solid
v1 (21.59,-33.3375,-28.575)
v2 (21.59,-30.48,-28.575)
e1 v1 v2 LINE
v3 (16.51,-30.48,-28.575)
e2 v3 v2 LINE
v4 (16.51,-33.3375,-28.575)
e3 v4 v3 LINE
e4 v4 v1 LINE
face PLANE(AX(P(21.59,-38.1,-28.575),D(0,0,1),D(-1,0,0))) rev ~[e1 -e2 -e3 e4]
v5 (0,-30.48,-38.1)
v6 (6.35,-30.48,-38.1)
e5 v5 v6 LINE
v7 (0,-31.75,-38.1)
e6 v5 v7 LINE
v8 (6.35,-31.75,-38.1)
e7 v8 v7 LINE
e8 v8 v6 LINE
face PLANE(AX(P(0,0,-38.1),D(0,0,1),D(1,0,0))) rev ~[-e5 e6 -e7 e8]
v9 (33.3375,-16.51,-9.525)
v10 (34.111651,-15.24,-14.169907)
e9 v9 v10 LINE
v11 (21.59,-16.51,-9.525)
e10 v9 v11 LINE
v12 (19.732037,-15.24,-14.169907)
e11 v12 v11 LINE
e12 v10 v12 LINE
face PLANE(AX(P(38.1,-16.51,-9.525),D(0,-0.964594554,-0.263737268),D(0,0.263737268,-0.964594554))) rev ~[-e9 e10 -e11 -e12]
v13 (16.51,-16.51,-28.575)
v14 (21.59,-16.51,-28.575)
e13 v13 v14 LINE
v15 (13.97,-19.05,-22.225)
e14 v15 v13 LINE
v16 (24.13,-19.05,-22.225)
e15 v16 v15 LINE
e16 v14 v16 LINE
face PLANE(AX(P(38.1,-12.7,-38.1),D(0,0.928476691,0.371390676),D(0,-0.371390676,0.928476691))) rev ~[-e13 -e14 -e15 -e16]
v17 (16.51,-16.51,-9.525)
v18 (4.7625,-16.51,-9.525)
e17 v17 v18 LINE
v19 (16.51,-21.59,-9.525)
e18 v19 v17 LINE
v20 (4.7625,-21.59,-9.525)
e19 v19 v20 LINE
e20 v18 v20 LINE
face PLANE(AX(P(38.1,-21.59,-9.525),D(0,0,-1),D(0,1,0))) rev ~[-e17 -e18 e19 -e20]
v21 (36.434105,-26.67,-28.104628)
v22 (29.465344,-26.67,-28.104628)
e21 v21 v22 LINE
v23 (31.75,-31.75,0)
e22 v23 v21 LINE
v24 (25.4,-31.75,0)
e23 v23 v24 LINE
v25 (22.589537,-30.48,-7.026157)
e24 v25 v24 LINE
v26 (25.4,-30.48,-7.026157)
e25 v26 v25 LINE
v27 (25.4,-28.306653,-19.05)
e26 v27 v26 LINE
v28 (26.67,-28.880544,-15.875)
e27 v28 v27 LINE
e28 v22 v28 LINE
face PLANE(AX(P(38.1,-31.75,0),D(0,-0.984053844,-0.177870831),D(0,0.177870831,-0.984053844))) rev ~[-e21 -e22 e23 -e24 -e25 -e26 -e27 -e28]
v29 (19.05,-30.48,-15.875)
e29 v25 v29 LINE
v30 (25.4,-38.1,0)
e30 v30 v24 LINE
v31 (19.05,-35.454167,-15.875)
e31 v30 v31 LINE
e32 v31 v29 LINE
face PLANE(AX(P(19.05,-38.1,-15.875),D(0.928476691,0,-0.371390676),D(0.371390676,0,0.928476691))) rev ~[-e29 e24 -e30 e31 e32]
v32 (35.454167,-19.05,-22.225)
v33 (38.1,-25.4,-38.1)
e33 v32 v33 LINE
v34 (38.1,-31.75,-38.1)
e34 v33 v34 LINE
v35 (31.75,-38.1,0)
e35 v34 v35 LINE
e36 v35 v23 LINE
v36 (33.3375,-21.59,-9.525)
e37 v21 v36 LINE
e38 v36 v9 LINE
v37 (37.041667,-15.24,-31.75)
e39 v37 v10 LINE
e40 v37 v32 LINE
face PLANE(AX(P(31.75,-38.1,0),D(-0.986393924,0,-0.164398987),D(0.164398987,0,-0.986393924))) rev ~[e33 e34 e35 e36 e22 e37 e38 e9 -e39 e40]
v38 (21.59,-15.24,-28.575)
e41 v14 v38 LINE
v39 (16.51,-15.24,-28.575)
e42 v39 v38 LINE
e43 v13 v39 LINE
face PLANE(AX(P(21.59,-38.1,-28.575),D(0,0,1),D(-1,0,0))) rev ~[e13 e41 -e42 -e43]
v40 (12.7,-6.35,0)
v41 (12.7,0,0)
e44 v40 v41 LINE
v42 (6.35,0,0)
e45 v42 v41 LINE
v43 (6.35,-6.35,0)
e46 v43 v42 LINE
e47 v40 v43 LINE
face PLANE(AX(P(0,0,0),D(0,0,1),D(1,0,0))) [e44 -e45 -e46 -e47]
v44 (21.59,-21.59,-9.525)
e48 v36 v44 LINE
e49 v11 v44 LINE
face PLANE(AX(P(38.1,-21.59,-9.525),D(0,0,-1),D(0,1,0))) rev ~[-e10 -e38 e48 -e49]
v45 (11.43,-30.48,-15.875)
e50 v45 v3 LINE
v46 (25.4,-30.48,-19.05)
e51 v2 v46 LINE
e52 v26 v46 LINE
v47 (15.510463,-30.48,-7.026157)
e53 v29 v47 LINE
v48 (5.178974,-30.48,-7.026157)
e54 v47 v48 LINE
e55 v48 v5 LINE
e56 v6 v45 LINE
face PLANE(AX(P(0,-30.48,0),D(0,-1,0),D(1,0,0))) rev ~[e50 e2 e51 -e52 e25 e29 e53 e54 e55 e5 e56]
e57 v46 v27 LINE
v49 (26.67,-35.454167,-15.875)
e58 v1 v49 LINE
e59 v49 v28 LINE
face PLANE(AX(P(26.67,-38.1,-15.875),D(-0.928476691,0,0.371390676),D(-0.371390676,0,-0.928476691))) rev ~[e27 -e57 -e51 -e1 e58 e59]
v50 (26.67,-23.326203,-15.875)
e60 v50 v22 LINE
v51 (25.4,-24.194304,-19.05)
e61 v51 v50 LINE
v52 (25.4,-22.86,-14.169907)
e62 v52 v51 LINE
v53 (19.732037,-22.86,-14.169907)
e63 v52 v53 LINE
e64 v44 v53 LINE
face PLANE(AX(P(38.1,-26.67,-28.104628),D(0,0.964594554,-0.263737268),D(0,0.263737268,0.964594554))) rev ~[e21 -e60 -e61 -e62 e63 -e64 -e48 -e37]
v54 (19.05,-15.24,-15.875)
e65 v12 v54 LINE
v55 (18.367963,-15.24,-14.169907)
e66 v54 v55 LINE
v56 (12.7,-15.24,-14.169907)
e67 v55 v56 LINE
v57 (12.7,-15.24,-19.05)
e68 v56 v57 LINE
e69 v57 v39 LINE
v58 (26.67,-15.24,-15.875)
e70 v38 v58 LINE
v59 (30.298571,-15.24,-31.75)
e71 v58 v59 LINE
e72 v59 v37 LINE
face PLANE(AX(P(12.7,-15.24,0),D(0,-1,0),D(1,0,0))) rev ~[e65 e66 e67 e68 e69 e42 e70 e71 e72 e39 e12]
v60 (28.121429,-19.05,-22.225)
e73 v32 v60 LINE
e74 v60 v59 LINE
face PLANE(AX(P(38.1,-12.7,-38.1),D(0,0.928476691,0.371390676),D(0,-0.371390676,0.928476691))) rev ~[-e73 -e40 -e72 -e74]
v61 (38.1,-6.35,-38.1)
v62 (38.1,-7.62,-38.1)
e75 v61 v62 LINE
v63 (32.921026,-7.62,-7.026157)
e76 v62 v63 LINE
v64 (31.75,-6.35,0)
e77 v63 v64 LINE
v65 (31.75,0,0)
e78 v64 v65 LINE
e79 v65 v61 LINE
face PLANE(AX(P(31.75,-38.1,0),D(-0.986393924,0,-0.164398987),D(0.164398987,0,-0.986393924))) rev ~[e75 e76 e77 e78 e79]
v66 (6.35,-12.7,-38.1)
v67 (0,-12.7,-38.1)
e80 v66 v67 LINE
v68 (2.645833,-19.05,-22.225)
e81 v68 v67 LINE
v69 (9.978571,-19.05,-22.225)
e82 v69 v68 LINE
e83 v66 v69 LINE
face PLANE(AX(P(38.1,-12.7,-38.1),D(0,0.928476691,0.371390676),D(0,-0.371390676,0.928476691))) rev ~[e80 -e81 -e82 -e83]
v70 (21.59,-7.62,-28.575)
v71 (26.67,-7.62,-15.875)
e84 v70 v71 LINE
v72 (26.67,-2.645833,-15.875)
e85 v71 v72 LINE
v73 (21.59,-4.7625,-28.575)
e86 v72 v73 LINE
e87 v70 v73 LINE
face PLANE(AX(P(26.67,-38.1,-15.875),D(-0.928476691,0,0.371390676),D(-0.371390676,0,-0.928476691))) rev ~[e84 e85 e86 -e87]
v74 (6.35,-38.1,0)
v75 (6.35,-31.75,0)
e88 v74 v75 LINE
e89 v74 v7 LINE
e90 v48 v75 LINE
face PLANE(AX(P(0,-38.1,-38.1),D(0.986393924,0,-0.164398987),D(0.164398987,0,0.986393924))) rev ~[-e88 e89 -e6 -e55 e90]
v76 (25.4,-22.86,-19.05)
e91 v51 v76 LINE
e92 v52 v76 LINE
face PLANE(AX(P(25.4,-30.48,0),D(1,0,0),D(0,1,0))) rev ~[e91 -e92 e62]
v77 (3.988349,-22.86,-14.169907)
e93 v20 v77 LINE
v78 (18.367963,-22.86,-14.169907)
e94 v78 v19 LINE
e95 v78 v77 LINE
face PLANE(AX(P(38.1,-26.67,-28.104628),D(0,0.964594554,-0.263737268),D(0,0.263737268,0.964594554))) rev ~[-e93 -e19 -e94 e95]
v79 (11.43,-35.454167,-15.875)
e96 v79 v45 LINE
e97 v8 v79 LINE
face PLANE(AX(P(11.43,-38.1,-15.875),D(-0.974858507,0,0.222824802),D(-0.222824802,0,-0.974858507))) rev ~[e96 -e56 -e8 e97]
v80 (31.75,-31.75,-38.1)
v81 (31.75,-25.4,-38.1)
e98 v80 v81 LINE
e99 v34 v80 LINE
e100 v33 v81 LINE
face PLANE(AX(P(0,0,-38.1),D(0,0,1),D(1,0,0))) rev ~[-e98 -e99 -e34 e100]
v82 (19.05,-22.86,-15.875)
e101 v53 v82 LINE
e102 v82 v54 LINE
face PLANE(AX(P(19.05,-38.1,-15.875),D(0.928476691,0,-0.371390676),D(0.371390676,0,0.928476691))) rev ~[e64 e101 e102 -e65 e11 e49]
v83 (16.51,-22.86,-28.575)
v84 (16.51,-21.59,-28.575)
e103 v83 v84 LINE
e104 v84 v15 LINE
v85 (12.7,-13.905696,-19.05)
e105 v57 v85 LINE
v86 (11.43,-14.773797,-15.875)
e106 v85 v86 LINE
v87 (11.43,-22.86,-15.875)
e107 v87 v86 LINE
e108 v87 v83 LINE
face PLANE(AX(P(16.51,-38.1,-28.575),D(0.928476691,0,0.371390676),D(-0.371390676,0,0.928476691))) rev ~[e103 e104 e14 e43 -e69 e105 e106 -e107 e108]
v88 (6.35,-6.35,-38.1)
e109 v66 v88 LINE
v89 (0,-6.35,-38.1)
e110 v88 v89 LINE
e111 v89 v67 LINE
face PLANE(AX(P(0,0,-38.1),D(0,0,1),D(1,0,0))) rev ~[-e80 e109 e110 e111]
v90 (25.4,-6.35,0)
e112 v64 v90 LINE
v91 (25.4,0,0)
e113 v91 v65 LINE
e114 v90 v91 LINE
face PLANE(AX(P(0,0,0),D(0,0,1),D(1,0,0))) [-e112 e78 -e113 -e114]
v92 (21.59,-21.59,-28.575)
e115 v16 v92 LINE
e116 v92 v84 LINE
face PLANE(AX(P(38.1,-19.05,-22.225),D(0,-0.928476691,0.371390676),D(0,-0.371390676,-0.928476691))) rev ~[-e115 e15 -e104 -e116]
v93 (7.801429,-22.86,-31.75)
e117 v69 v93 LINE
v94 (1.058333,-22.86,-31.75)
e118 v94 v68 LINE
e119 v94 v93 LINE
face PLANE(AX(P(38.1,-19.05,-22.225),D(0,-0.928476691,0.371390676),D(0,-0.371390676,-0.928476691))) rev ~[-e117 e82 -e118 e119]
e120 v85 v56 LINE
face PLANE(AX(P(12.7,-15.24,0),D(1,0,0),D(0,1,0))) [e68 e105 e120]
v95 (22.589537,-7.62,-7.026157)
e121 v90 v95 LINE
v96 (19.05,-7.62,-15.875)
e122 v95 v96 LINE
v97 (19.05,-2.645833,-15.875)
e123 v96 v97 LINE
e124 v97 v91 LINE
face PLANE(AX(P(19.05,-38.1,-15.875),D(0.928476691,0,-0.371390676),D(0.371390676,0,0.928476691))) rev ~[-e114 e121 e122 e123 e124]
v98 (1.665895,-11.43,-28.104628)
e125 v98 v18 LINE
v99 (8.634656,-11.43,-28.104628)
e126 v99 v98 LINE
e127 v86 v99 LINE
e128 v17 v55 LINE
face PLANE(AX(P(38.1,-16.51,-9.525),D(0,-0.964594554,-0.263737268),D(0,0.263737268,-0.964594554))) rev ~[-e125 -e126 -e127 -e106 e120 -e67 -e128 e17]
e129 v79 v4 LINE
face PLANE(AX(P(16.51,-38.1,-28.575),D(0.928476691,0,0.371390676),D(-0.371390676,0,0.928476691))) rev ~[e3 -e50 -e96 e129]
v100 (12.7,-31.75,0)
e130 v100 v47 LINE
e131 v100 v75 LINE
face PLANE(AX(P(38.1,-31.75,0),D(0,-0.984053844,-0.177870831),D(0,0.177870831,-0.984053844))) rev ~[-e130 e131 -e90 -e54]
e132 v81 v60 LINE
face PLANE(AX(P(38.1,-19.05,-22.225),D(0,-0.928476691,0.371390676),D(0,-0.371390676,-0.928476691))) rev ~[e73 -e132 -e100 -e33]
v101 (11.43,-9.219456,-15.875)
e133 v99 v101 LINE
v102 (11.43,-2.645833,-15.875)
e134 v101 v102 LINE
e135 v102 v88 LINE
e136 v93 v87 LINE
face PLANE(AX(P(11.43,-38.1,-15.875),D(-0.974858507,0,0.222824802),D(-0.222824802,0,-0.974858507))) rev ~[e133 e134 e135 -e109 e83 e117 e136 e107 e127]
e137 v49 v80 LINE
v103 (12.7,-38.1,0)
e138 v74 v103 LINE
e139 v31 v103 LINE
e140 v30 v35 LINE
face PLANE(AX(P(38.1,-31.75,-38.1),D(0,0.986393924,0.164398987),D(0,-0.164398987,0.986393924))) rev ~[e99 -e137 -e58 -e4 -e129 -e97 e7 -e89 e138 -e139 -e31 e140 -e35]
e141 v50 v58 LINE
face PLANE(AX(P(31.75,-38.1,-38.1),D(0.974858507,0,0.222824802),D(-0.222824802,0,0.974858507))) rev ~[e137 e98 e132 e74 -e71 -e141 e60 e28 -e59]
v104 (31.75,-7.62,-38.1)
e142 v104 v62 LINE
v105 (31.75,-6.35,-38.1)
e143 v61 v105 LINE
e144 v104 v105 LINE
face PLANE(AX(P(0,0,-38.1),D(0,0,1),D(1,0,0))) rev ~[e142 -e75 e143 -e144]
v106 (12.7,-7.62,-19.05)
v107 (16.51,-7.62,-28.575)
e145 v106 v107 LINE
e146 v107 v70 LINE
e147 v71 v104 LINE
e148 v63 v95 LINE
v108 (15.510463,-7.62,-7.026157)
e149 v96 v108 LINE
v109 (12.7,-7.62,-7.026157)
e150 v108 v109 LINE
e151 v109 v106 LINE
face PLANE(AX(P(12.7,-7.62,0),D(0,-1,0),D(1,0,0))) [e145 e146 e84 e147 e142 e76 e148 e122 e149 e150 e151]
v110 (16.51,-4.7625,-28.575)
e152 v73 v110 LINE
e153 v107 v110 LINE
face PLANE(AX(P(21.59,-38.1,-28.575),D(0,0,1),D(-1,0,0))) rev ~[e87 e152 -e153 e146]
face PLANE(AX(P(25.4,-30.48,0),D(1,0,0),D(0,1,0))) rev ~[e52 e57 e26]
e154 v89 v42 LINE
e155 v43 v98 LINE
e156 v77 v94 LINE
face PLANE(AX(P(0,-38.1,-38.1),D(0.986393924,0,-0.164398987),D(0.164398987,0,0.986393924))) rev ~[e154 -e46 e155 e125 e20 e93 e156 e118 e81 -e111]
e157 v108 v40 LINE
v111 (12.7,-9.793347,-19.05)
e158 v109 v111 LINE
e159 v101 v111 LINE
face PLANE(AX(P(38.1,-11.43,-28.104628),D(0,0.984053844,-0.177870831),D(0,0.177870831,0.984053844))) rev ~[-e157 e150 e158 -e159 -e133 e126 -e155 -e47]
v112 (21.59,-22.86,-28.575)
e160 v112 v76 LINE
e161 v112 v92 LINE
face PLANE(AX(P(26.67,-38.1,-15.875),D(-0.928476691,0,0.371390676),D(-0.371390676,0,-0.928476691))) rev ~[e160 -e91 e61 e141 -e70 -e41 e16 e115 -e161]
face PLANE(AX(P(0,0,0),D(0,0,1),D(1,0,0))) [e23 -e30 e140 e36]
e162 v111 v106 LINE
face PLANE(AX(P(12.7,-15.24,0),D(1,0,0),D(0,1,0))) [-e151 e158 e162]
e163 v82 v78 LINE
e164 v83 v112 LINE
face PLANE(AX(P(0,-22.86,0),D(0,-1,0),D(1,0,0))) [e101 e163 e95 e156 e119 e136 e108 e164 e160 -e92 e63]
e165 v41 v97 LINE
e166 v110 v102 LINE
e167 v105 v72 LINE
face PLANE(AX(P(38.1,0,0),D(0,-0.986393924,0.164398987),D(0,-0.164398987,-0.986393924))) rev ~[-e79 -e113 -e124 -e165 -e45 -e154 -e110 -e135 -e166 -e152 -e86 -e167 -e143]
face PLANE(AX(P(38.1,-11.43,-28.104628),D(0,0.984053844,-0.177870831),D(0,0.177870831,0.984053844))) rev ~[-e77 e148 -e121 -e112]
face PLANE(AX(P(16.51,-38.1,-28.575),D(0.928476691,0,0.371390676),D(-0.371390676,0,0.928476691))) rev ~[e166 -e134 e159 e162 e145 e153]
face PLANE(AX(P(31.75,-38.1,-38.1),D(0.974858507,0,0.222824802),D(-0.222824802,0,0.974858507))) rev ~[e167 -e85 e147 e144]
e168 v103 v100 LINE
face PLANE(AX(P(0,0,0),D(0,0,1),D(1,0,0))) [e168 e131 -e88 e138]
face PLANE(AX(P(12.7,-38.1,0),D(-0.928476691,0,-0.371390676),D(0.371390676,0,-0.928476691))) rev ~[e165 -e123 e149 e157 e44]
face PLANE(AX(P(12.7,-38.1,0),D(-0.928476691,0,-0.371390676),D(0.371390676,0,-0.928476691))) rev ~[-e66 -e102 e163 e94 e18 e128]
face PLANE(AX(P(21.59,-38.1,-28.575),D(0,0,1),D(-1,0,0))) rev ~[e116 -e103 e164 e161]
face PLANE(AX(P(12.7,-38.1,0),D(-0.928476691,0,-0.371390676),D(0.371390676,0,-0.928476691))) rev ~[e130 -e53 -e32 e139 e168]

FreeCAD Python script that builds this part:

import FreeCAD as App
import Part
import Sketcher
from FreeCAD import Vector
Q = App.Units.Quantity


def add_polygon(sketch, points):
    """Adds a closed chain of lines whose ends are joined by coincident constraints."""
    first, n = sketch.GeometryCount, len(points)
    for a, b in zip(points, points[1:] + points[:1]):
        sketch.addGeometry(Part.LineSegment(App.Vector(*a, 0), App.Vector(*b, 0)), False)
    for i in range(n):
        sketch.addConstraint(Sketcher.Constraint("Coincident", first + i, 2, first + (i + 1) % n, 1))

doc = App.newDocument("Part")
body = doc.addObject("PartDesign::Body", "Body")

sketch1 = doc.addObject("Sketcher::SketchObject", "Sketch")
body.addObject(sketch1)
sketch1.AttachmentSupport = (doc.XZ_Plane, [""])
sketch1.MapMode = "FlatFace"
add_polygon(sketch1, [(0, 0), (0, -38), (38, -38), (38, 0)])
sketch1.addConstraint(Sketcher.Constraint("Vertical", 0))
sketch1.addConstraint(Sketcher.Constraint("Horizontal", 1))
sketch1.addConstraint(Sketcher.Constraint("Vertical", 2))
sketch1.addConstraint(Sketcher.Constraint("Horizontal", 3))
sketch1.addConstraint(Sketcher.Constraint("Coincident", 3, 2, -1, 1))
sketch1.addConstraint(Sketcher.Constraint("Equal", 3, 0))
sketch1.addConstraint(Sketcher.Constraint("DistanceX", 1, 1, 1, 2, Q("1.5 in")))
pad1 = doc.addObject("PartDesign::Pad", "Pad")
body.addObject(pad1)
pad1.Profile = sketch1
pad1.Length = Q("1.5 in")

sketch2 = doc.addObject("Sketcher::SketchObject", "Sketch001")
body.addObject(sketch2)
sketch2.AttachmentSupport = (doc.YZ_Plane, [""])
sketch2.MapMode = "FlatFace"
sketch2.AttachmentOffset = App.Placement(Vector(0, 0, 1.5 * 25.4), App.Rotation())
add_polygon(sketch2, [(-32, -38), (-38, 0), (-38, -38)])
add_polygon(sketch2, [(-11, -28), (-6, 0), (-32, 0), (-27, -28), (-22, -10), (-17, -10)])
add_polygon(sketch2, [(-25, -38), (-13, -38), (-19, -22)])
add_polygon(sketch2, [(0, 0), (-6, -38), (0, -38)])
sketch2.addConstraint(Sketcher.Constraint("Vertical", 1))
sketch2.addConstraint(Sketcher.Constraint("Horizontal", 2))
sketch2.addConstraint(Sketcher.Constraint("Horizontal", 4))
sketch2.addConstraint(Sketcher.Constraint("Horizontal", 7))
sketch2.addConstraint(Sketcher.Constraint("Horizontal", 9))
sketch2.addConstraint(Sketcher.Constraint("Horizontal", 13))
sketch2.addConstraint(Sketcher.Constraint("Vertical", 14))
sketch2.addConstraint(Sketcher.Constraint("Coincident", 14, 2, -1, 1))
sketch2.addConstraint(Sketcher.Constraint("PointOnObject", 0, 2, -1))
sketch2.addConstraint(Sketcher.Constraint("PointOnObject", 3, 2, -1))
sketch2.addConstraint(Sketcher.Constraint("Horizontal", 5, 2, 8, 2))
sketch2.addConstraint(Sketcher.Constraint("Horizontal", 2, 2, 9, 2))
sketch2.addConstraint(Sketcher.Constraint("Horizontal", 11, 2, 12, 2))
sketch2.addConstraint(Sketcher.Constraint("Vertical", 2, 2, 4, 2))
sketch2.addConstraint(Sketcher.Constraint("Vertical", 3, 2, 12, 2))
sketch2.addConstraint(Sketcher.Constraint("Equal", 2, 13))
sketch2.addConstraint(Sketcher.Constraint("Equal", 3, 5))
sketch2.addConstraint(Sketcher.Constraint("Equal", 6, 8))
sketch2.addConstraint(Sketcher.Constraint("Equal", 10, 11))
sketch2.addConstraint(Sketcher.Constraint("DistanceX", 4, 2, 4, 1, Q("1 in")))
sketch2.addConstraint(Sketcher.Constraint("DistanceX", 7, 1, 7, 2, Q("0.2 in")))
sketch2.addConstraint(Sketcher.Constraint("DistanceX", 9, 1, 9, 2, Q("0.5 in")))
sketch2.addConstraint(Sketcher.Constraint("DistanceY", 1, 2, 1, 1, Q("1.5 in")))
sketch2.addConstraint(Sketcher.Constraint("DistanceX", 11, 2, -1, 1, Q("1 in")))
sketch2.addConstraint(Sketcher.Constraint("DistanceX", 1, 2, 9, 2, Q("1 in")))
sketch2.addConstraint(Sketcher.Constraint("DistanceX", 2, 2, 5, 2, Q("0.2 in")))
sketch2.addConstraint(Sketcher.Constraint("DistanceY", 10, 2, 6, 2, Q("0.5 in")))
sketch2.addConstraint(Sketcher.Constraint("DistanceY", 6, 2, -1, 1, Q("0.375 in")))
sketch2.addConstraint(Sketcher.Constraint("Distance", 3, 28.560051))
pocket1 = doc.addObject("PartDesign::Pocket", "Pocket")
body.addObject(pocket1)
pocket1.Profile = sketch2
pocket1.Length = Q("1.5 in")

sketch3 = doc.addObject("Sketcher::SketchObject", "Sketch002")
body.addObject(sketch3)
sketch3.AttachmentSupport = (doc.XZ_Plane, [""])
sketch3.MapMode = "FlatFace"
sketch3.AttachmentOffset = App.Placement(Vector(0, 0, 1.5 * 25.4), App.Rotation())
add_polygon(sketch3, [(6, 0), (0, 0), (0, -38)])
add_polygon(sketch3, [(25, 0), (13, 0), (19, -16)])
add_polygon(sketch3, [(11, -16), (6, -38), (32, -38), (27, -16), (22, -29), (17, -29)])
add_polygon(sketch3, [(38, 0), (32, 0), (38, -38)])
sketch3.addConstraint(Sketcher.Constraint("Horizontal", 0))
sketch3.addConstraint(Sketcher.Constraint("Vertical", 1))
sketch3.addConstraint(Sketcher.Constraint("Horizontal", 3))
sketch3.addConstraint(Sketcher.Constraint("Horizontal", 7))
sketch3.addConstraint(Sketcher.Constraint("Horizontal", 10))
sketch3.addConstraint(Sketcher.Constraint("Horizontal", 12))
sketch3.addConstraint(Sketcher.Constraint("Vertical", 14))
sketch3.addConstraint(Sketcher.Constraint("Coincident", 0, 2, -1, 1))
sketch3.addConstraint(Sketcher.Constraint("PointOnObject", 3, 2, -1))
sketch3.addConstraint(Sketcher.Constraint("PointOnObject", 12, 2, -1))
sketch3.addConstraint(Sketcher.Constraint("Parallel", 5, 9))
sketch3.addConstraint(Sketcher.Constraint("Parallel", 4, 11))
sketch3.addConstraint(Sketcher.Constraint("Horizontal", 1, 2, 6, 2))
sketch3.addConstraint(Sketcher.Constraint("Horizontal", 4, 2, 8, 2))
sketch3.addConstraint(Sketcher.Constraint("Horizontal", 8, 2, 11, 2))
sketch3.addConstraint(Sketcher.Constraint("Horizontal", 7, 2, 13, 2))
sketch3.addConstraint(Sketcher.Constraint("Vertical", 2, 2, 6, 2))
sketch3.addConstraint(Sketcher.Constraint("Vertical", 7, 2, 12, 2))
sketch3.addConstraint(Sketcher.Constraint("Equal", 0, 12))
sketch3.addConstraint(Sketcher.Constraint("Equal", 4, 5))
sketch3.addConstraint(Sketcher.Constraint("Equal", 6, 8))
sketch3.addConstraint(Sketcher.Constraint("DistanceX", 7, 1, 7, 2, Q("1 in")))
sketch3.addConstraint(Sketcher.Constraint("DistanceX", 3, 2, 3, 1, Q("0.5 in")))
sketch3.addConstraint(Sketcher.Constraint("DistanceX", 10, 2, 10, 1, Q("0.2 in")))
sketch3.addConstraint(Sketcher.Constraint("DistanceY", 1, 2, 1, 1, Q("1.5 in")))
sketch3.addConstraint(Sketcher.Constraint("DistanceX", -1, 1, 5, 2, Q("1 in")))
sketch3.addConstraint(Sketcher.Constraint("DistanceX", 3, 2, 14, 2, Q("1 in")))
sketch3.addConstraint(Sketcher.Constraint("DistanceX", 4, 2, 8, 2, Q("0.3 in")))
sketch3.addConstraint(Sketcher.Constraint("DistanceY", 9, 2, 4, 2, Q("0.5 in")))
pocket2 = doc.addObject("PartDesign::Pocket", "Pocket001")
body.addObject(pocket2)
pocket2.Profile = sketch3
pocket2.Length = Q("1.5 in")

sketch4 = doc.addObject("Sketcher::SketchObject", "Sketch003")
body.addObject(sketch4)
sketch4.AttachmentSupport = (doc.XY_Plane, [""])
sketch4.MapMode = "FlatFace"
add_polygon(sketch4, [(13, -8), (13, -15), (38, -15), (38, -8)])
add_polygon(sketch4, [(0, -23), (0, -30), (25, -30), (25, -23)])
sketch4.addConstraint(Sketcher.Constraint("Vertical", 0))
sketch4.addConstraint(Sketcher.Constraint("Horizontal", 1))
sketch4.addConstraint(Sketcher.Constraint("Vertical", 2))
sketch4.addConstraint(Sketcher.Constraint("Horizontal", 3))
sketch4.addConstraint(Sketcher.Constraint("Vertical", 4))
sketch4.addConstraint(Sketcher.Constraint("Horizontal", 5))
sketch4.addConstraint(Sketcher.Constraint("Vertical", 6))
sketch4.addConstraint(Sketcher.Constraint("Horizontal", 7))
sketch4.addConstraint(Sketcher.Constraint("PointOnObject", 4, 2, -2))
sketch4.addConstraint(Sketcher.Constraint("Equal", 3, 5))
sketch4.addConstraint(Sketcher.Constraint("Equal", 2, 4))
sketch4.addConstraint(Sketcher.Constraint("DistanceX", 1, 1, 1, 2, Q("1 in")))
sketch4.addConstraint(Sketcher.Constraint("DistanceY", 0, 2, 0, 1, Q("0.3 in")))
sketch4.addConstraint(Sketcher.Constraint("DistanceX", -1, 1, 0, 2, Q("0.5 in")))
sketch4.addConstraint(Sketcher.Constraint("DistanceY", 0, 2, -1, 1, Q("0.6 in")))
sketch4.addConstraint(Sketcher.Constraint("DistanceY", 4, 2, -1, 1, Q("1.2 in")))
pocket3 = doc.addObject("PartDesign::Pocket", "Pocket002")
body.addObject(pocket3)
pocket3.Profile = sketch4
pocket3.Length = Q("1.5 in")

doc.recompute()
